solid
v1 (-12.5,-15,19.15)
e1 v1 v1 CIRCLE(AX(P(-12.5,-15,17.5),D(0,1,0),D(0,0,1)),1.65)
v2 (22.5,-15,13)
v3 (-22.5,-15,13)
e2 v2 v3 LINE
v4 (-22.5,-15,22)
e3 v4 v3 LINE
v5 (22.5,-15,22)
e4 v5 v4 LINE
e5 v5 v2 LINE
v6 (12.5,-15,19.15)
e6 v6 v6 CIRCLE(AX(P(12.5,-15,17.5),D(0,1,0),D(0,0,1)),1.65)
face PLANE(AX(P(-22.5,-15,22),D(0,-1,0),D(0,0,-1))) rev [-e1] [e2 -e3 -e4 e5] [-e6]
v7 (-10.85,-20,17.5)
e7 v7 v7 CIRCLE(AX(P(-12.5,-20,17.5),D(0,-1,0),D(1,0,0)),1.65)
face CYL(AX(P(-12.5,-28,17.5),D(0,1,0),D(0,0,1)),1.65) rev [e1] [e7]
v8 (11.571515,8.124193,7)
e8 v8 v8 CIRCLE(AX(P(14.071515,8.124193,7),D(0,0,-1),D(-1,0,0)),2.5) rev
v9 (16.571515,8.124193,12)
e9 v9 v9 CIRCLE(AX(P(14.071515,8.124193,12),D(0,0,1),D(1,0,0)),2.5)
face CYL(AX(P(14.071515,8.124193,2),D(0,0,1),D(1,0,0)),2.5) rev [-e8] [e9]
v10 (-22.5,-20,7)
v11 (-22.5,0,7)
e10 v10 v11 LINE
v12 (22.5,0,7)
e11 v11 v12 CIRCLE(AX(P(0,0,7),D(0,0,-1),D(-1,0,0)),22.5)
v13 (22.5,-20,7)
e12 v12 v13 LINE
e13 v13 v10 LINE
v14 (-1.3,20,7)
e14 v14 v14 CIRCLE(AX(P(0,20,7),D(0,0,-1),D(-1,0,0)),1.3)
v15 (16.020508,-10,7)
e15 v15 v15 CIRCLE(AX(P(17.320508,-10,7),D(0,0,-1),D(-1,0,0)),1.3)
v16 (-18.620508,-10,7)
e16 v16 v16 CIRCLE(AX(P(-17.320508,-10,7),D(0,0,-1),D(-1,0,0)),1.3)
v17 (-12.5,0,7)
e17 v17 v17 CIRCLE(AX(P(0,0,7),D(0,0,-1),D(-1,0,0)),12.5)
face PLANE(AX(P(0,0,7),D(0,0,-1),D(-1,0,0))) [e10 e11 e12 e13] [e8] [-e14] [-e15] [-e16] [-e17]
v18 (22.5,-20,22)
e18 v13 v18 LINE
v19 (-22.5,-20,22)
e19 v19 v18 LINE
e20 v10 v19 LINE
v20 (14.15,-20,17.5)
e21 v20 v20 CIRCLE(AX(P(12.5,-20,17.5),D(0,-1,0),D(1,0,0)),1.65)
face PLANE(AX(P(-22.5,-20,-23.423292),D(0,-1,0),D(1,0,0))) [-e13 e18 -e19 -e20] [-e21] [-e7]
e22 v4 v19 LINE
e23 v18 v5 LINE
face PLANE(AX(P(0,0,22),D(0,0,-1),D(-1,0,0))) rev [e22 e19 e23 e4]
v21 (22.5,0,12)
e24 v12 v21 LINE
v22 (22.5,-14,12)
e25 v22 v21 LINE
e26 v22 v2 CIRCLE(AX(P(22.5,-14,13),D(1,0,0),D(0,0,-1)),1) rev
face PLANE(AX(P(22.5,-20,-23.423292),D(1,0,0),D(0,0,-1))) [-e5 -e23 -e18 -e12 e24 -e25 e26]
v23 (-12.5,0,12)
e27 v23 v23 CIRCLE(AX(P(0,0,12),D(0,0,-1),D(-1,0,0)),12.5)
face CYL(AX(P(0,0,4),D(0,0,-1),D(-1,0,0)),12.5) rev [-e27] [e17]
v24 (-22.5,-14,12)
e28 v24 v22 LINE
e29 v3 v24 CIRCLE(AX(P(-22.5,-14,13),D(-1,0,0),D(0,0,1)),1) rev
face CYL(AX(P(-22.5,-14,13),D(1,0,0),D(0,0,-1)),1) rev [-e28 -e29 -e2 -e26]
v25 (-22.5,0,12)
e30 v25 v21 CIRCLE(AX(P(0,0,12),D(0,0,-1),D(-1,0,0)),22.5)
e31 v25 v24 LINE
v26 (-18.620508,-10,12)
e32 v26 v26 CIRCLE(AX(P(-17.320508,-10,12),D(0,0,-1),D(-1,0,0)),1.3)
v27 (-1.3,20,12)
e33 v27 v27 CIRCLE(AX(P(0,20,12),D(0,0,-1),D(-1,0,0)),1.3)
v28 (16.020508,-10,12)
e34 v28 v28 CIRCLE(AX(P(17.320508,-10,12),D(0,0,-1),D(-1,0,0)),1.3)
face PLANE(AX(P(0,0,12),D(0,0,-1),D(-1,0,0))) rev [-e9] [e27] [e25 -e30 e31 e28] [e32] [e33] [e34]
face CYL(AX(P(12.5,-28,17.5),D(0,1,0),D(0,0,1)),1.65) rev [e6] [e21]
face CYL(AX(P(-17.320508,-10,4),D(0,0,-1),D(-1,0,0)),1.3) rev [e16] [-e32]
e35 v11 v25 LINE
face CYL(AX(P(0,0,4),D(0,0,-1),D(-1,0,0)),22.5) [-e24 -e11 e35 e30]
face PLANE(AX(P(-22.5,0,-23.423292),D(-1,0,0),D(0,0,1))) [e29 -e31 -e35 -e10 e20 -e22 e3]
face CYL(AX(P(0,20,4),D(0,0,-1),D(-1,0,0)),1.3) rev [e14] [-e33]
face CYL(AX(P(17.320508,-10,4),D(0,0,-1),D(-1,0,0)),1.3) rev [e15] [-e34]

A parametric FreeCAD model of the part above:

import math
import FreeCAD as App
import Part
import Sketcher

V = App.Vector
Q = App.Units.Quantity


def edges_at(feature, points):
    """Names of the edges that pass closest to the given points."""
    edges = feature.Shape.Edges
    near = lambda p: min(range(len(edges)), key=lambda i: edges[i].distToShape(Part.Vertex(*p))[0])
    return sorted({f"Edge{near(p) + 1}" for p in points})

doc = App.newDocument("Part")
body = doc.addObject("PartDesign::Body", "Body")

# Sketch on XY plane
sketch1 = body.newObject("Sketcher::SketchObject", "Sketch")
sketch1.AttachmentSupport = (doc.getObject("XY_Plane"), [""])
sketch1.MapMode = "FlatFace"
sketch1.addGeometry(Part.Circle(V(0, 0, 0), V(0, 0, 1), 22.5), False)
sketch1.addGeometry(Part.Circle(V(-17.3, -10, 0), V(0, 0, 1), 1.3), False)
sketch1.addGeometry(Part.Circle(V(17.3, -10, 0), V(0, 0, 1), 1.3), False)
sketch1.addGeometry(Part.Circle(V(0, 0, 0), V(0, 0, 1), 12.5), False)
sketch1.addGeometry(Part.Circle(V(0, 20, 0), V(0, 0, 1), 1.3), False)
sketch1.addConstraint(Sketcher.Constraint("Coincident", 0, 3, -1, 1))
sketch1.addConstraint(Sketcher.Constraint("Coincident", 3, 3, -1, 1))
sketch1.addConstraint(Sketcher.Constraint("Equal", 1, 2))
sketch1.addConstraint(Sketcher.Constraint("Equal", 2, 4))
sketch1.addConstraint(Sketcher.Constraint("Symmetric", 1, 3, 2, 3, -2))
sketch1.addConstraint(Sketcher.Constraint("PointOnObject", 4, 3, -2))
sketch1.addConstraint(Sketcher.Constraint("Diameter", 0, Q("45 mm")))
sketch1.addConstraint(Sketcher.Constraint("Diameter", 3, Q("25 mm")))
sketch1.addConstraint(Sketcher.Constraint("Diameter", 1, Q("2.6 mm")))
sketch1.addConstraint(Sketcher.Constraint("DistanceY", 1, 3, -1, 1, Q("10 mm")))
sketch1.addConstraint(Sketcher.Constraint("DistanceY", -1, 1, 4, 3, Q("20 mm")))
sketch1.addConstraint(Sketcher.Constraint("DistanceX", 1, 3, -1, 1, Q("17.320508 mm")))
pad1 = body.newObject("PartDesign::Pad", "Pad")
pad1.Profile = sketch1
pad1.Length = 4

# Sketch on XY plane
sketch2 = body.newObject("Sketcher::SketchObject", "Sketch001")
sketch2.AttachmentSupport = (doc.getObject("XY_Plane"), [""])
sketch2.MapMode = "FlatFace"
sketch2.addGeometry(Part.LineSegment(V(-22, 0, 0), V(-22, -20, 0)), False)
sketch2.addGeometry(Part.LineSegment(V(-22, -20, 0), V(-10, -20, 0)), False)
sketch2.addGeometry(Part.ArcOfCircle(Part.Circle(V(0, 0, 0), V(0, 0, 1), 22), math.radians(180), math.radians(243)), False)
sketch2.addGeometry(Part.LineSegment(V(22, -20, 0), V(22, 0, 0)), False)
sketch2.addGeometry(Part.ArcOfCircle(Part.Circle(V(0, 0, 0), V(0, 0, 1), 22), math.radians(-63), math.radians(0)), False)
sketch2.addGeometry(Part.LineSegment(V(10, -20, 0), V(22, -20, 0)), False)
sketch2.addConstraint(Sketcher.Constraint("Coincident", 0, 2, 1, 1))
sketch2.addConstraint(Sketcher.Constraint("Coincident", 1, 2, 2, 2))
sketch2.addConstraint(Sketcher.Constraint("Tangent", 2, 1, 0, 1))
sketch2.addConstraint(Sketcher.Constraint("Tangent", 3, 2, 4, 2))
sketch2.addConstraint(Sketcher.Constraint("Coincident", 4, 1, 5, 1))
sketch2.addConstraint(Sketcher.Constraint("Coincident", 5, 2, 3, 1))
sketch2.addConstraint(Sketcher.Constraint("Vertical", 0))
sketch2.addConstraint(Sketcher.Constraint("Horizontal", 1))
sketch2.addConstraint(Sketcher.Constraint("Vertical", 3))
sketch2.addConstraint(Sketcher.Constraint("Horizontal", 5))
sketch2.addConstraint(Sketcher.Constraint("Coincident", 2, 3, -1, 1))
sketch2.addConstraint(Sketcher.Constraint("Coincident", 4, 3, -1, 1))
sketch2.addConstraint(Sketcher.Constraint("Equal", 2, 4))
sketch2.addConstraint(Sketcher.Constraint("Horizontal", 1, 2, 4, 1))
sketch2.addConstraint(Sketcher.Constraint("Radius", 2, Q("22.5 mm")))
sketch2.addConstraint(Sketcher.Constraint("DistanceY", 0, 2, 0, 1, Q("20 mm")))
pad2 = body.newObject("PartDesign::Pad", "Pad001")
pad2.Profile = sketch2
pad2.Length = 4

# Sketch on XY plane
sketch3 = body.newObject("Sketcher::SketchObject", "Sketch002")
sketch3.AttachmentSupport = (doc.getObject("XY_Plane"), [""])
sketch3.MapMode = "FlatFace"
sketch3.AttachmentOffset = App.Placement(V(0, 0, 4), App.Rotation())
sketch3.addGeometry(Part.LineSegment(V(-22, -15, 0), V(-22, -20, 0)), False)
sketch3.addGeometry(Part.LineSegment(V(-22, -20, 0), V(22, -20, 0)), False)
sketch3.addGeometry(Part.LineSegment(V(22, -20, 0), V(22, -15, 0)), False)
sketch3.addGeometry(Part.LineSegment(V(22, -15, 0), V(-22, -15, 0)), False)
sketch3.addConstraint(Sketcher.Constraint("Coincident", 0, 2, 1, 1))
sketch3.addConstraint(Sketcher.Constraint("Coincident", 1, 2, 2, 1))
sketch3.addConstraint(Sketcher.Constraint("Coincident", 2, 2, 3, 1))
sketch3.addConstraint(Sketcher.Constraint("Coincident", 3, 2, 0, 1))
sketch3.addConstraint(Sketcher.Constraint("Vertical", 0))
sketch3.addConstraint(Sketcher.Constraint("Horizontal", 1))
sketch3.addConstraint(Sketcher.Constraint("Vertical", 2))
sketch3.addConstraint(Sketcher.Constraint("Horizontal", 3))
sketch3.addConstraint(Sketcher.Constraint("DistanceX", 1, 1, 1, 2, Q("45 mm")))
sketch3.addConstraint(Sketcher.Constraint("DistanceY", 0, 2, 0, 1, Q("5 mm")))
sketch3.addConstraint(Sketcher.Constraint("DistanceY", 0, 2, -1, 1, Q("20 mm")))
sketch3.addConstraint(Sketcher.Constraint("DistanceX", 0, 2, -1, 1, Q("22.5 mm")))
pad3 = body.newObject("PartDesign::Pad", "Pad002")
pad3.Profile = sketch3
pad3.Length = 8

# Sketch on XY plane
sketch4 = body.newObject("Sketcher::SketchObject", "Sketch003")
sketch4.AttachmentSupport = (doc.getObject("XY_Plane"), [""])
sketch4.MapMode = "FlatFace"
sketch4.AttachmentOffset = App.Placement(V(0, 0, -6), App.Rotation())
sketch4.addGeometry(Part.LineSegment(V(10, -20, 0), V(-10, -20, 0)), False)
sketch4.addGeometry(Part.ArcOfCircle(Part.Circle(V(0, 0, 0), V(0, 0, 1), 22), math.radians(-117), math.radians(-63)), False)
sketch4.addConstraint(Sketcher.Constraint("Coincident", 0, 1, 1, 2))
sketch4.addConstraint(Sketcher.Constraint("Coincident", 1, 1, 0, 2))
sketch4.addConstraint(Sketcher.Constraint("Horizontal", 0))
sketch4.addConstraint(Sketcher.Constraint("Coincident", 1, 3, -1, 1))
sketch4.addConstraint(Sketcher.Constraint("Radius", 1, Q("22.5 mm")))
sketch4.addConstraint(Sketcher.Constraint("DistanceY", 0, 1, -1, 1, Q("20 mm")))
pocket1 = body.newObject("PartDesign::Pocket", "Pocket")
pocket1.Profile = sketch4
pocket1.Length = 10
pocket1.Reversed = True

# Sketch on XY plane
sketch5 = body.newObject("Sketcher::SketchObject", "Sketch004")
sketch5.AttachmentSupport = (doc.getObject("XY_Plane"), [""])
sketch5.MapMode = "FlatFace"
sketch5.AttachmentOffset = App.Placement(V(0, 0, 4), App.Rotation())
sketch5.addGeometry(Part.LineSegment(V(-22.5, -15, 0), V(22.5, -15, 0)), False)
sketch5.addGeometry(Part.LineSegment(V(22.5, -15, 0), V(22.5, 0, 0)), False)
sketch5.addGeometry(Part.ArcOfCircle(Part.Circle(V(0, 0, 0), V(0, 0, 1), 22.5), math.radians(0), math.radians(180)), False)
sketch5.addGeometry(Part.LineSegment(V(-22.5, 0, 0), V(-22.5, -15, 0)), False)
sketch5.addGeometry(Part.Circle(V(-17.3, -10, 0), V(0, 0, 1), 1.3), False)
sketch5.addGeometry(Part.Circle(V(17.3, -10, 0), V(0, 0, 1), 1.3), False)
sketch5.addGeometry(Part.Circle(V(0, 0, 0), V(0, 0, 1), 12.5), False)
sketch5.addGeometry(Part.Circle(V(0, 20, 0), V(0, 0, 1), 1.3), False)
sketch5.addConstraint(Sketcher.Constraint("Coincident", 0, 2, 1, 1))
sketch5.addConstraint(Sketcher.Constraint("Tangent", 1, 2, 2, 1))
sketch5.addConstraint(Sketcher.Constraint("Tangent", 2, 2, 3, 1))
sketch5.addConstraint(Sketcher.Constraint("Coincident", 3, 2, 0, 1))
sketch5.addConstraint(Sketcher.Constraint("Horizontal", 0))
sketch5.addConstraint(Sketcher.Constraint("Vertical", 1))
sketch5.addConstraint(Sketcher.Constraint("Vertical", 3))
sketch5.addConstraint(Sketcher.Constraint("Coincident", 2, 3, -1, 1))
sketch5.addConstraint(Sketcher.Constraint("Coincident", 6, 3, -1, 1))
sketch5.addConstraint(Sketcher.Constraint("Equal", 4, 5))
sketch5.addConstraint(Sketcher.Constraint("Equal", 5, 7))
sketch5.addConstraint(Sketcher.Constraint("Symmetric", 4, 3, 5, 3, -2))
sketch5.addConstraint(Sketcher.Constraint("PointOnObject", 7, 3, -2))
sketch5.addConstraint(Sketcher.Constraint("Diameter", 6, Q("25 mm")))
sketch5.addConstraint(Sketcher.Constraint("Diameter", 4, Q("2.6 mm")))
sketch5.addConstraint(Sketcher.Constraint("Radius", 2, Q("22.5 mm")))
sketch5.addConstraint(Sketcher.Constraint("DistanceY", 1, 1, 1, 2, Q("15 mm")))
sketch5.addConstraint(Sketcher.Constraint("DistanceY", 4, 3, -1, 1, Q("10 mm")))
sketch5.addConstraint(Sketcher.Constraint("DistanceY", -1, 1, 7, 3, Q("20 mm")))
sketch5.addConstraint(Sketcher.Constraint("DistanceX", 4, 3, -1, 1, Q("17.320508 mm")))
pad4 = body.newObject("PartDesign::Pad", "Pad003")
pad4.Profile = sketch5
pad4.Length = 8

# Sketch on XY plane
sketch6 = body.newObject("Sketcher::SketchObject", "Sketch005")
sketch6.AttachmentSupport = (doc.getObject("XY_Plane"), [""])
sketch6.MapMode = "FlatFace"
sketch6.addGeometry(Part.LineSegment(V(22, 0, 0), V(22, -20, 0)), False)
sketch6.addGeometry(Part.LineSegment(V(22, -20, 0), V(-22, -20, 0)), False)
sketch6.addGeometry(Part.LineSegment(V(-22, -20, 0), V(-22, 0, 0)), False)
sketch6.addGeometry(Part.ArcOfCircle(Part.Circle(V(0, 0, 0), V(0, 0, 1), 22), math.radians(0), math.radians(180)), False)
sketch6.addConstraint(Sketcher.Constraint("Coincident", 0, 2, 1, 1))
sketch6.addConstraint(Sketcher.Constraint("Coincident", 1, 2, 2, 1))
sketch6.addConstraint(Sketcher.Constraint("Tangent", 2, 2, 3, 2))
sketch6.addConstraint(Sketcher.Constraint("Tangent", 3, 1, 0, 1))
sketch6.addConstraint(Sketcher.Constraint("Vertical", 0))
sketch6.addConstraint(Sketcher.Constraint("Horizontal", 1))
sketch6.addConstraint(Sketcher.Constraint("Vertical", 2))
sketch6.addConstraint(Sketcher.Constraint("Coincident", 3, 3, -1, 1))
sketch6.addConstraint(Sketcher.Constraint("Radius", 3, Q("22.5 mm")))
sketch6.addConstraint(Sketcher.Constraint("DistanceY", 0, 2, 0, 1, Q("20 mm")))
pocket2 = body.newObject("PartDesign::Pocket", "Pocket001")
pocket2.Profile = sketch6
pocket2.Length = 4
pocket2.Reversed = True

# Sketch on XY plane
sketch7 = body.newObject("Sketcher::SketchObject", "Sketch006")
sketch7.AttachmentSupport = (doc.getObject("XY_Plane"), [""])
sketch7.MapMode = "FlatFace"
sketch7.AttachmentOffset = App.Placement(V(0, 0, 12), App.Rotation())
sketch7.addGeometry(Part.Circle(V(14.1, 8.1, 0), V(0, 0, 1), 2.5), False)
sketch7.addConstraint(Sketcher.Constraint("Diameter", 0, Q("5 mm")))
sketch7.addConstraint(Sketcher.Constraint("DistanceX", -1, 1, 0, 3, Q("14.071515 mm")))
sketch7.addConstraint(Sketcher.Constraint("DistanceY", -1, 1, 0, 3, Q("8.124193 mm")))
pocket3 = body.newObject("PartDesign::Pocket", "Pocket002")
pocket3.Profile = sketch7
pocket3.Length = 10

# Sketch on XY plane
sketch8 = body.newObject("Sketcher::SketchObject", "Sketch007")
sketch8.AttachmentSupport = (doc.getObject("XY_Plane"), [""])
sketch8.MapMode = "FlatFace"
sketch8.AttachmentOffset = App.Placement(V(0, 0, 12), App.Rotation())
sketch8.addGeometry(Part.LineSegment(V(-22, -15, 0), V(-22, -20, 0)), False)
sketch8.addGeometry(Part.LineSegment(V(-22, -20, 0), V(22, -20, 0)), False)
sketch8.addGeometry(Part.LineSegment(V(22, -20, 0), V(22, -15, 0)), False)
sketch8.addGeometry(Part.LineSegment(V(22, -15, 0), V(-22, -15, 0)), False)
sketch8.addConstraint(Sketcher.Constraint("Coincident", 0, 2, 1, 1))
sketch8.addConstraint(Sketcher.Constraint("Coincident", 1, 2, 2, 1))
sketch8.addConstraint(Sketcher.Constraint("Coincident", 2, 2, 3, 1))
sketch8.addConstraint(Sketcher.Constraint("Coincident", 3, 2, 0, 1))
sketch8.addConstraint(Sketcher.Constraint("Vertical", 0))
sketch8.addConstraint(Sketcher.Constraint("Horizontal", 1))
sketch8.addConstraint(Sketcher.Constraint("Vertical", 2))
sketch8.addConstraint(Sketcher.Constraint("Horizontal", 3))
sketch8.addConstraint(Sketcher.Constraint("DistanceX", 1, 1, 1, 2, Q("45 mm")))
sketch8.addConstraint(Sketcher.Constraint("DistanceY", 0, 2, 0, 1, Q("5 mm")))
sketch8.addConstraint(Sketcher.Constraint("DistanceY", 0, 2, -1, 1, Q("20 mm")))
sketch8.addConstraint(Sketcher.Constraint("DistanceX", 0, 2, -1, 1, Q("22.5 mm")))
pad5 = body.newObject("PartDesign::Pad", "Pad004")
pad5.Profile = sketch8
pad5.Length = 10
doc.recompute()

fillet = body.newObject("PartDesign::Fillet", "Fillet")
fillet.Base = (pad5, edges_at(pad5, [(0, -15, 12)]))
fillet.Radius = 1

# Sketch on XY plane
sketch9 = body.newObject("Sketcher::SketchObject", "Sketch008")
sketch9.AttachmentSupport = (doc.getObject("XY_Plane"), [""])
sketch9.MapMode = "FlatFace"
sketch9.AttachmentOffset = App.Placement(V(0, 0, 4), App.Rotation())
sketch9.addGeometry(Part.LineSegment(V(22, 0, 0), V(22, -20, 0)), False)
sketch9.addGeometry(Part.LineSegment(V(22, -20, 0), V(-22, -20, 0)), False)
sketch9.addGeometry(Part.LineSegment(V(-22, -20, 0), V(-22, 0, 0)), False)
sketch9.addGeometry(Part.ArcOfCircle(Part.Circle(V(0, 0, 0), V(0, 0, 1), 22), math.radians(0), math.radians(180)), False)
sketch9.addConstraint(Sketcher.Constraint("Coincident", 0, 2, 1, 1))
sketch9.addConstraint(Sketcher.Constraint("Coincident", 1, 2, 2, 1))
sketch9.addConstraint(Sketcher.Constraint("Tangent", 2, 2, 3, 2))
sketch9.addConstraint(Sketcher.Constraint("Tangent", 3, 1, 0, 1))
sketch9.addConstraint(Sketcher.Constraint("Vertical", 0))
sketch9.addConstraint(Sketcher.Constraint("Horizontal", 1))
sketch9.addConstraint(Sketcher.Constraint("Vertical", 2))
sketch9.addConstraint(Sketcher.Constraint("Coincident", 3, 3, -1, 1))
sketch9.addConstraint(Sketcher.Constraint("Radius", 3, Q("22.5 mm")))
sketch9.addConstraint(Sketcher.Constraint("DistanceY", 0, 2, 0, 1, Q("20 mm")))
pocket4 = body.newObject("PartDesign::Pocket", "Pocket003")
pocket4.Profile = sketch9
pocket4.Length = 3
pocket4.Reversed = True

# Sketch on XZ plane
sketch10 = body.newObject("Sketcher::SketchObject", "Sketch009")
sketch10.AttachmentSupport = (doc.getObject("XZ_Plane"), [""])
sketch10.MapMode = "FlatFace"
sketch10.AttachmentOffset = App.Placement(V(0, 0, 15), App.Rotation())
sketch10.addGeometry(Part.Circle(V(-12.5, 17.5, 0), V(0, 0, 1), 1.6), False)
sketch10.addGeometry(Part.Circle(V(12.5, 17.5, 0), V(0, 0, 1), 1.6), False)
sketch10.addConstraint(Sketcher.Constraint("Equal", 0, 1))
sketch10.addConstraint(Sketcher.Constraint("Symmetric", 0, 3, 1, 3, -2))
sketch10.addConstraint(Sketcher.Constraint("Diameter", 0, Q("3.3 mm")))
sketch10.addConstraint(Sketcher.Constraint("DistanceX", 0, 3, 1, 3, Q("25 mm")))
sketch10.addConstraint(Sketcher.Constraint("DistanceY", -1, 1, 0, 3, Q("17.5 mm")))
pocket5 = body.newObject("PartDesign::Pocket", "Pocket004")
pocket5.Profile = sketch10
pocket5.Length = 13
pocket5.Reversed = True

doc.recompute()
